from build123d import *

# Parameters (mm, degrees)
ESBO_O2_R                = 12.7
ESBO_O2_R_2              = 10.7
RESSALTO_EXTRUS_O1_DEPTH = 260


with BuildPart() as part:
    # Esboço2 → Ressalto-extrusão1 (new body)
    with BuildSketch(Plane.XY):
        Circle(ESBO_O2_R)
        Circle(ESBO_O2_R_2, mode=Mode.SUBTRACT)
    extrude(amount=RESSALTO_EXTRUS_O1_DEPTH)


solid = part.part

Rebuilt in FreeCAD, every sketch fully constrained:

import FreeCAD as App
import Part
import Sketcher

doc = App.newDocument("Part")
body = doc.addObject("PartDesign::Body", "Body")

# Sketch on XY plane
sketch1 = body.newObject("Sketcher::SketchObject", "Sketch")
sketch1.AttachmentSupport = (doc.getObject("XY_Plane"), [""])
sketch1.MapMode = "FlatFace"
sketch1.addGeometry(Part.Circle(App.Vector(0, 0, 0), App.Vector(0, 0, 1), 13), False)
sketch1.addGeometry(Part.Circle(App.Vector(0, 0, 0), App.Vector(0, 0, 1), 11), False)
sketch1.addConstraint(Sketcher.Constraint("Coincident", 0, 3, -1, 1))
sketch1.addConstraint(Sketcher.Constraint("Coincident", 1, 3, -1, 1))
sketch1.addConstraint(Sketcher.Constraint("Diameter", 0, 25.4))
sketch1.addConstraint(Sketcher.Constraint("Diameter", 1, 21.4))
pad1 = body.newObject("PartDesign::Pad", "Pad")
pad1.Profile = sketch1
pad1.Length = 260

doc.recompute()
